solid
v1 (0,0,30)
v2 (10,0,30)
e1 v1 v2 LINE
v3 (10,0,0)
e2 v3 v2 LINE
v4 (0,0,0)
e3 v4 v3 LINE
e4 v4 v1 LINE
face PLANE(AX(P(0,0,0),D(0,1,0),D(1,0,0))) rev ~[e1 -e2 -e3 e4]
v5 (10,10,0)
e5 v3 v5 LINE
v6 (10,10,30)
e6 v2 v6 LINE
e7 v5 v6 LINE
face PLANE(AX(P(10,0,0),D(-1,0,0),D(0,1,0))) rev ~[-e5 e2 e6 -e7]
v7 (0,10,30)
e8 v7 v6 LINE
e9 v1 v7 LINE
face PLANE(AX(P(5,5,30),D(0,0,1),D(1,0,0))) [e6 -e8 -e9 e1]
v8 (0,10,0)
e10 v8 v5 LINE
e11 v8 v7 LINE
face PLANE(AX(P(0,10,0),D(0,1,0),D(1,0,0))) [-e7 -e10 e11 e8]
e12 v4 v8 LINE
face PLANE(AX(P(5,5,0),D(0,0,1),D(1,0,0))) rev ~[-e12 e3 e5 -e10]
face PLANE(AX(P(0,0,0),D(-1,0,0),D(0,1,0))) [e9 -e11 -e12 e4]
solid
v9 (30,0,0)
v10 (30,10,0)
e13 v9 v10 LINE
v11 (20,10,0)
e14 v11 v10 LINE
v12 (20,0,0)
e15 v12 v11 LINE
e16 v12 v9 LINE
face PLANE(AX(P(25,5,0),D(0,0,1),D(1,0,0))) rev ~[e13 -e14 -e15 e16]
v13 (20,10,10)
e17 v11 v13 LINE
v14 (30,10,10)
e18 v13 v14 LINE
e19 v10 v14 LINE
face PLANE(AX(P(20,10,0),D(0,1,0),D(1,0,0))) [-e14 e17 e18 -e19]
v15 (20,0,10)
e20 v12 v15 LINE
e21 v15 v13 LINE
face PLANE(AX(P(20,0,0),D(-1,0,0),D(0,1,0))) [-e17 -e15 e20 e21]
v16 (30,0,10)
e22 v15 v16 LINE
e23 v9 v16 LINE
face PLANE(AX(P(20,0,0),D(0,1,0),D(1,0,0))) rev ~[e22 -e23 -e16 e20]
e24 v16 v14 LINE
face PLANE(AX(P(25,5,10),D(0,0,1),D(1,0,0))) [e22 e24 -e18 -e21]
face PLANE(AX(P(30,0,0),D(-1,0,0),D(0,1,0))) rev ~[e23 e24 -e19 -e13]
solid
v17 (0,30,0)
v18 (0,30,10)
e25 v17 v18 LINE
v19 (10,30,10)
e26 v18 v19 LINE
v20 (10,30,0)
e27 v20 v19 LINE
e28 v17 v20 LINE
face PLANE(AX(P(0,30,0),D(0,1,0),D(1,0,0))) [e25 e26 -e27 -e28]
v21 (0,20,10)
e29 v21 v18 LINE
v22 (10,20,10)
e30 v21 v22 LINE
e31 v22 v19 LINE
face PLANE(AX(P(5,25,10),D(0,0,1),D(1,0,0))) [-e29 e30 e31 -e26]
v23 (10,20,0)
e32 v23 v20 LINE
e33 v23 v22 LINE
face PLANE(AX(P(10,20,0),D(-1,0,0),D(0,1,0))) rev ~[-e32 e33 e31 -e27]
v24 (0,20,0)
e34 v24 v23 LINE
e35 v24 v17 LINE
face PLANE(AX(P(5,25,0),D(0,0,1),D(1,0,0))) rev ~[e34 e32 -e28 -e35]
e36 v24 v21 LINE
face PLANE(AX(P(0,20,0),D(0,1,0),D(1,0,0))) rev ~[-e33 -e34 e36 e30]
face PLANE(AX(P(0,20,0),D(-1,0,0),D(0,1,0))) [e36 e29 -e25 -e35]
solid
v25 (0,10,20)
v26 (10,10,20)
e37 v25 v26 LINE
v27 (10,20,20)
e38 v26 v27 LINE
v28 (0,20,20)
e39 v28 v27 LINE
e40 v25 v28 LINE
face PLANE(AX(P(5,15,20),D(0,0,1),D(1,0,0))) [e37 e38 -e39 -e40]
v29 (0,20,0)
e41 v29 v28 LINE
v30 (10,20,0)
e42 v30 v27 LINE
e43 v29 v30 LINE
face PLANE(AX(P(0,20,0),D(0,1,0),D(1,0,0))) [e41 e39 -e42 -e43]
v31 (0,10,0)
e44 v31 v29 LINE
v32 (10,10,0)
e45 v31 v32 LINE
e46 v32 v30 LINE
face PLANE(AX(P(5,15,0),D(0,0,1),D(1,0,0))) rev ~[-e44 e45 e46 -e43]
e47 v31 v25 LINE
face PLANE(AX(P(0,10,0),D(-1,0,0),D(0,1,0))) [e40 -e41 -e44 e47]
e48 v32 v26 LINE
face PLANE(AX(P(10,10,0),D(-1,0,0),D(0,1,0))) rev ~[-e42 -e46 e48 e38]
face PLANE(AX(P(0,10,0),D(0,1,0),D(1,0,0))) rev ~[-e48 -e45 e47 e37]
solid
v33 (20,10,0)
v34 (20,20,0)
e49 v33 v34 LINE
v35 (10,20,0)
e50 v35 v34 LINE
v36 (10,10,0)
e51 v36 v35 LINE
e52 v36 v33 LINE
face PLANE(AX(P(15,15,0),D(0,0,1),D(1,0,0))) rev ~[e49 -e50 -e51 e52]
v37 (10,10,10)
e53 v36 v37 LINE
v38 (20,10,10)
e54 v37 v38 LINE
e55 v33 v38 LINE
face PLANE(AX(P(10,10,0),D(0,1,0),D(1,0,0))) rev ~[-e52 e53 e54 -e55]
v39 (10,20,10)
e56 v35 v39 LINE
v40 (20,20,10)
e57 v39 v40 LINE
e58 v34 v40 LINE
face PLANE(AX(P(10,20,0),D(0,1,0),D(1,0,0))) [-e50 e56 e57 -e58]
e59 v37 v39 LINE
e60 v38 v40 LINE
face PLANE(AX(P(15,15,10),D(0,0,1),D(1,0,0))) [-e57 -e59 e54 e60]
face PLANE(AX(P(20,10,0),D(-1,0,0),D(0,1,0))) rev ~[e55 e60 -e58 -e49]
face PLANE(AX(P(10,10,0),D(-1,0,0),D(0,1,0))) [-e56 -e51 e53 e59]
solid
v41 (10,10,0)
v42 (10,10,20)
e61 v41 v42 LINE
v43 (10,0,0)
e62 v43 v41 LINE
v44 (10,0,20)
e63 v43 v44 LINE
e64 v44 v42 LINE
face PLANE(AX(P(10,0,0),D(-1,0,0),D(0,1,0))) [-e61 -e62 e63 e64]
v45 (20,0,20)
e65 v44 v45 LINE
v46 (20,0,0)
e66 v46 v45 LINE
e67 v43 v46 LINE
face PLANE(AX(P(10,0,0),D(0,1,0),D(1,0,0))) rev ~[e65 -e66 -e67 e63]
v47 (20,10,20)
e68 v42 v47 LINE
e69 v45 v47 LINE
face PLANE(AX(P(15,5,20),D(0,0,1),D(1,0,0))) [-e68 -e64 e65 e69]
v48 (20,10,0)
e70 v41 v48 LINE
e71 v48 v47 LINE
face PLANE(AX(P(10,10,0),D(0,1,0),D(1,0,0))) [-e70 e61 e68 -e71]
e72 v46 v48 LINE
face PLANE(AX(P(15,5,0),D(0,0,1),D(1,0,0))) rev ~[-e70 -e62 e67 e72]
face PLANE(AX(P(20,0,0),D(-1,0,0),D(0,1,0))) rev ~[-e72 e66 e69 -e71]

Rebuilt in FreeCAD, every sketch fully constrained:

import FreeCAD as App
import Part
import Sketcher
Q = App.Units.Quantity


def add_polygon(sketch, points):
    """Adds a closed chain of lines whose ends are joined by coincident constraints."""
    first, n = sketch.GeometryCount, len(points)
    for a, b in zip(points, points[1:] + points[:1]):
        sketch.addGeometry(Part.LineSegment(App.Vector(*a, 0), App.Vector(*b, 0)), False)
    for i in range(n):
        sketch.addConstraint(Sketcher.Constraint("Coincident", first + i, 2, first + (i + 1) % n, 1))

doc = App.newDocument("Part")
body = doc.addObject("PartDesign::Body", "Body")

sketch1 = body.newObject("Sketcher::SketchObject", "Sketch")
sketch1.AttachmentSupport = (doc.getObject("XY_Plane"), [""])
sketch1.MapMode = "FlatFace"
add_polygon(sketch1, [(0, 10), (0, 0), (10, 0), (10, 10)])
sketch1.addConstraint(Sketcher.Constraint("Vertical", 0))
sketch1.addConstraint(Sketcher.Constraint("Horizontal", 1))
sketch1.addConstraint(Sketcher.Constraint("Vertical", 2))
sketch1.addConstraint(Sketcher.Constraint("Horizontal", 3))
sketch1.addConstraint(Sketcher.Constraint("Coincident", 0, 2, -1, 1))
sketch1.addConstraint(Sketcher.Constraint("Equal", 3, 0))
sketch1.addConstraint(Sketcher.Constraint("DistanceX", 1, 1, 1, 2, Q("10 mm")))
pad1 = body.newObject("PartDesign::Pad", "Pad")
pad1.Profile = sketch1
pad1.Length = 30
body2 = doc.addObject("PartDesign::Body", "Body001")

sketch2 = body2.newObject("Sketcher::SketchObject", "Sketch001")
sketch2.AttachmentSupport = (doc.getObject("XY_Plane001"), [""])
sketch2.MapMode = "FlatFace"
add_polygon(sketch2, [(10, 10), (10, 0), (20, 0), (20, 10)])
sketch2.addConstraint(Sketcher.Constraint("Vertical", 0))
sketch2.addConstraint(Sketcher.Constraint("Horizontal", 1))
sketch2.addConstraint(Sketcher.Constraint("Vertical", 2))
sketch2.addConstraint(Sketcher.Constraint("Horizontal", 3))
sketch2.addConstraint(Sketcher.Constraint("PointOnObject", 0, 2, -1))
sketch2.addConstraint(Sketcher.Constraint("Equal", 3, 0))
sketch2.addConstraint(Sketcher.Constraint("DistanceX", 1, 1, 1, 2, Q("10 mm")))
sketch2.addConstraint(Sketcher.Constraint("DistanceX", -1, 1, 0, 2, Q("10 mm")))
pad2 = body2.newObject("PartDesign::Pad", "Pad001")
pad2.Profile = sketch2
pad2.Length = 20
body3 = doc.addObject("PartDesign::Body", "Body002")

sketch3 = body3.newObject("Sketcher::SketchObject", "Sketch002")
sketch3.AttachmentSupport = (doc.getObject("XY_Plane002"), [""])
sketch3.MapMode = "FlatFace"
add_polygon(sketch3, [(0, 20), (0, 10), (10, 10), (10, 20)])
sketch3.addConstraint(Sketcher.Constraint("Vertical", 0))
sketch3.addConstraint(Sketcher.Constraint("Horizontal", 1))
sketch3.addConstraint(Sketcher.Constraint("Vertical", 2))
sketch3.addConstraint(Sketcher.Constraint("Horizontal", 3))
sketch3.addConstraint(Sketcher.Constraint("PointOnObject", 0, 2, -2))
sketch3.addConstraint(Sketcher.Constraint("Equal", 3, 0))
sketch3.addConstraint(Sketcher.Constraint("DistanceX", 1, 1, 1, 2, Q("10 mm")))
sketch3.addConstraint(Sketcher.Constraint("DistanceY", -1, 1, 0, 2, Q("10 mm")))
pad3 = body3.newObject("PartDesign::Pad", "Pad002")
pad3.Profile = sketch3
pad3.Length = 20
body4 = doc.addObject("PartDesign::Body", "Body003")

sketch4 = body4.newObject("Sketcher::SketchObject", "Sketch003")
sketch4.AttachmentSupport = (doc.getObject("XY_Plane003"), [""])
sketch4.MapMode = "FlatFace"
add_polygon(sketch4, [(10, 20), (10, 10), (20, 10), (20, 20)])
sketch4.addConstraint(Sketcher.Constraint("Vertical", 0))
sketch4.addConstraint(Sketcher.Constraint("Horizontal", 1))
sketch4.addConstraint(Sketcher.Constraint("Vertical", 2))
sketch4.addConstraint(Sketcher.Constraint("Horizontal", 3))
sketch4.addConstraint(Sketcher.Constraint("Equal", 3, 0))
sketch4.addConstraint(Sketcher.Constraint("DistanceX", 1, 1, 1, 2, Q("10 mm")))
sketch4.addConstraint(Sketcher.Constraint("DistanceX", -1, 1, 0, 2, Q("10 mm")))
sketch4.addConstraint(Sketcher.Constraint("DistanceY", -1, 1, 0, 2, Q("10 mm")))
pad4 = body4.newObject("PartDesign::Pad", "Pad003")
pad4.Profile = sketch4
pad4.Length = 10
body5 = doc.addObject("PartDesign::Body", "Body004")

sketch5 = body5.newObject("Sketcher::SketchObject", "Sketch004")
sketch5.AttachmentSupport = (doc.getObject("XY_Plane004"), [""])
sketch5.MapMode = "FlatFace"
add_polygon(sketch5, [(0, 30), (0, 20), (10, 20), (10, 30)])
sketch5.addConstraint(Sketcher.Constraint("Vertical", 0))
sketch5.addConstraint(Sketcher.Constraint("Horizontal", 1))
sketch5.addConstraint(Sketcher.Constraint("Vertical", 2))
sketch5.addConstraint(Sketcher.Constraint("Horizontal", 3))
sketch5.addConstraint(Sketcher.Constraint("PointOnObject", 0, 2, -2))
sketch5.addConstraint(Sketcher.Constraint("Equal", 3, 0))
sketch5.addConstraint(Sketcher.Constraint("DistanceX", 1, 1, 1, 2, Q("10 mm")))
sketch5.addConstraint(Sketcher.Constraint("DistanceY", -1, 1, 0, 2, Q("20 mm")))
pad5 = body5.newObject("PartDesign::Pad", "Pad004")
pad5.Profile = sketch5
pad5.Length = 10
body6 = doc.addObject("PartDesign::Body", "Body005")

sketch6 = body6.newObject("Sketcher::SketchObject", "Sketch005")
sketch6.AttachmentSupport = (doc.getObject("XY_Plane005"), [""])
sketch6.MapMode = "FlatFace"
add_polygon(sketch6, [(20, 10), (20, 0), (30, 0), (30, 10)])
sketch6.addConstraint(Sketcher.Constraint("Vertical", 0))
sketch6.addConstraint(Sketcher.Constraint("Horizontal", 1))
sketch6.addConstraint(Sketcher.Constraint("Vertical", 2))
sketch6.addConstraint(Sketcher.Constraint("Horizontal", 3))
sketch6.addConstraint(Sketcher.Constraint("PointOnObject", 0, 2, -1))
sketch6.addConstraint(Sketcher.Constraint("Equal", 3, 0))
sketch6.addConstraint(Sketcher.Constraint("DistanceX", 1, 1, 1, 2, Q("10 mm")))
sketch6.addConstraint(Sketcher.Constraint("DistanceX", -1, 1, 0, 2, Q("20 mm")))
pad6 = body6.newObject("PartDesign::Pad", "Pad005")
pad6.Profile = sketch6
pad6.Length = 10

doc.recompute()
